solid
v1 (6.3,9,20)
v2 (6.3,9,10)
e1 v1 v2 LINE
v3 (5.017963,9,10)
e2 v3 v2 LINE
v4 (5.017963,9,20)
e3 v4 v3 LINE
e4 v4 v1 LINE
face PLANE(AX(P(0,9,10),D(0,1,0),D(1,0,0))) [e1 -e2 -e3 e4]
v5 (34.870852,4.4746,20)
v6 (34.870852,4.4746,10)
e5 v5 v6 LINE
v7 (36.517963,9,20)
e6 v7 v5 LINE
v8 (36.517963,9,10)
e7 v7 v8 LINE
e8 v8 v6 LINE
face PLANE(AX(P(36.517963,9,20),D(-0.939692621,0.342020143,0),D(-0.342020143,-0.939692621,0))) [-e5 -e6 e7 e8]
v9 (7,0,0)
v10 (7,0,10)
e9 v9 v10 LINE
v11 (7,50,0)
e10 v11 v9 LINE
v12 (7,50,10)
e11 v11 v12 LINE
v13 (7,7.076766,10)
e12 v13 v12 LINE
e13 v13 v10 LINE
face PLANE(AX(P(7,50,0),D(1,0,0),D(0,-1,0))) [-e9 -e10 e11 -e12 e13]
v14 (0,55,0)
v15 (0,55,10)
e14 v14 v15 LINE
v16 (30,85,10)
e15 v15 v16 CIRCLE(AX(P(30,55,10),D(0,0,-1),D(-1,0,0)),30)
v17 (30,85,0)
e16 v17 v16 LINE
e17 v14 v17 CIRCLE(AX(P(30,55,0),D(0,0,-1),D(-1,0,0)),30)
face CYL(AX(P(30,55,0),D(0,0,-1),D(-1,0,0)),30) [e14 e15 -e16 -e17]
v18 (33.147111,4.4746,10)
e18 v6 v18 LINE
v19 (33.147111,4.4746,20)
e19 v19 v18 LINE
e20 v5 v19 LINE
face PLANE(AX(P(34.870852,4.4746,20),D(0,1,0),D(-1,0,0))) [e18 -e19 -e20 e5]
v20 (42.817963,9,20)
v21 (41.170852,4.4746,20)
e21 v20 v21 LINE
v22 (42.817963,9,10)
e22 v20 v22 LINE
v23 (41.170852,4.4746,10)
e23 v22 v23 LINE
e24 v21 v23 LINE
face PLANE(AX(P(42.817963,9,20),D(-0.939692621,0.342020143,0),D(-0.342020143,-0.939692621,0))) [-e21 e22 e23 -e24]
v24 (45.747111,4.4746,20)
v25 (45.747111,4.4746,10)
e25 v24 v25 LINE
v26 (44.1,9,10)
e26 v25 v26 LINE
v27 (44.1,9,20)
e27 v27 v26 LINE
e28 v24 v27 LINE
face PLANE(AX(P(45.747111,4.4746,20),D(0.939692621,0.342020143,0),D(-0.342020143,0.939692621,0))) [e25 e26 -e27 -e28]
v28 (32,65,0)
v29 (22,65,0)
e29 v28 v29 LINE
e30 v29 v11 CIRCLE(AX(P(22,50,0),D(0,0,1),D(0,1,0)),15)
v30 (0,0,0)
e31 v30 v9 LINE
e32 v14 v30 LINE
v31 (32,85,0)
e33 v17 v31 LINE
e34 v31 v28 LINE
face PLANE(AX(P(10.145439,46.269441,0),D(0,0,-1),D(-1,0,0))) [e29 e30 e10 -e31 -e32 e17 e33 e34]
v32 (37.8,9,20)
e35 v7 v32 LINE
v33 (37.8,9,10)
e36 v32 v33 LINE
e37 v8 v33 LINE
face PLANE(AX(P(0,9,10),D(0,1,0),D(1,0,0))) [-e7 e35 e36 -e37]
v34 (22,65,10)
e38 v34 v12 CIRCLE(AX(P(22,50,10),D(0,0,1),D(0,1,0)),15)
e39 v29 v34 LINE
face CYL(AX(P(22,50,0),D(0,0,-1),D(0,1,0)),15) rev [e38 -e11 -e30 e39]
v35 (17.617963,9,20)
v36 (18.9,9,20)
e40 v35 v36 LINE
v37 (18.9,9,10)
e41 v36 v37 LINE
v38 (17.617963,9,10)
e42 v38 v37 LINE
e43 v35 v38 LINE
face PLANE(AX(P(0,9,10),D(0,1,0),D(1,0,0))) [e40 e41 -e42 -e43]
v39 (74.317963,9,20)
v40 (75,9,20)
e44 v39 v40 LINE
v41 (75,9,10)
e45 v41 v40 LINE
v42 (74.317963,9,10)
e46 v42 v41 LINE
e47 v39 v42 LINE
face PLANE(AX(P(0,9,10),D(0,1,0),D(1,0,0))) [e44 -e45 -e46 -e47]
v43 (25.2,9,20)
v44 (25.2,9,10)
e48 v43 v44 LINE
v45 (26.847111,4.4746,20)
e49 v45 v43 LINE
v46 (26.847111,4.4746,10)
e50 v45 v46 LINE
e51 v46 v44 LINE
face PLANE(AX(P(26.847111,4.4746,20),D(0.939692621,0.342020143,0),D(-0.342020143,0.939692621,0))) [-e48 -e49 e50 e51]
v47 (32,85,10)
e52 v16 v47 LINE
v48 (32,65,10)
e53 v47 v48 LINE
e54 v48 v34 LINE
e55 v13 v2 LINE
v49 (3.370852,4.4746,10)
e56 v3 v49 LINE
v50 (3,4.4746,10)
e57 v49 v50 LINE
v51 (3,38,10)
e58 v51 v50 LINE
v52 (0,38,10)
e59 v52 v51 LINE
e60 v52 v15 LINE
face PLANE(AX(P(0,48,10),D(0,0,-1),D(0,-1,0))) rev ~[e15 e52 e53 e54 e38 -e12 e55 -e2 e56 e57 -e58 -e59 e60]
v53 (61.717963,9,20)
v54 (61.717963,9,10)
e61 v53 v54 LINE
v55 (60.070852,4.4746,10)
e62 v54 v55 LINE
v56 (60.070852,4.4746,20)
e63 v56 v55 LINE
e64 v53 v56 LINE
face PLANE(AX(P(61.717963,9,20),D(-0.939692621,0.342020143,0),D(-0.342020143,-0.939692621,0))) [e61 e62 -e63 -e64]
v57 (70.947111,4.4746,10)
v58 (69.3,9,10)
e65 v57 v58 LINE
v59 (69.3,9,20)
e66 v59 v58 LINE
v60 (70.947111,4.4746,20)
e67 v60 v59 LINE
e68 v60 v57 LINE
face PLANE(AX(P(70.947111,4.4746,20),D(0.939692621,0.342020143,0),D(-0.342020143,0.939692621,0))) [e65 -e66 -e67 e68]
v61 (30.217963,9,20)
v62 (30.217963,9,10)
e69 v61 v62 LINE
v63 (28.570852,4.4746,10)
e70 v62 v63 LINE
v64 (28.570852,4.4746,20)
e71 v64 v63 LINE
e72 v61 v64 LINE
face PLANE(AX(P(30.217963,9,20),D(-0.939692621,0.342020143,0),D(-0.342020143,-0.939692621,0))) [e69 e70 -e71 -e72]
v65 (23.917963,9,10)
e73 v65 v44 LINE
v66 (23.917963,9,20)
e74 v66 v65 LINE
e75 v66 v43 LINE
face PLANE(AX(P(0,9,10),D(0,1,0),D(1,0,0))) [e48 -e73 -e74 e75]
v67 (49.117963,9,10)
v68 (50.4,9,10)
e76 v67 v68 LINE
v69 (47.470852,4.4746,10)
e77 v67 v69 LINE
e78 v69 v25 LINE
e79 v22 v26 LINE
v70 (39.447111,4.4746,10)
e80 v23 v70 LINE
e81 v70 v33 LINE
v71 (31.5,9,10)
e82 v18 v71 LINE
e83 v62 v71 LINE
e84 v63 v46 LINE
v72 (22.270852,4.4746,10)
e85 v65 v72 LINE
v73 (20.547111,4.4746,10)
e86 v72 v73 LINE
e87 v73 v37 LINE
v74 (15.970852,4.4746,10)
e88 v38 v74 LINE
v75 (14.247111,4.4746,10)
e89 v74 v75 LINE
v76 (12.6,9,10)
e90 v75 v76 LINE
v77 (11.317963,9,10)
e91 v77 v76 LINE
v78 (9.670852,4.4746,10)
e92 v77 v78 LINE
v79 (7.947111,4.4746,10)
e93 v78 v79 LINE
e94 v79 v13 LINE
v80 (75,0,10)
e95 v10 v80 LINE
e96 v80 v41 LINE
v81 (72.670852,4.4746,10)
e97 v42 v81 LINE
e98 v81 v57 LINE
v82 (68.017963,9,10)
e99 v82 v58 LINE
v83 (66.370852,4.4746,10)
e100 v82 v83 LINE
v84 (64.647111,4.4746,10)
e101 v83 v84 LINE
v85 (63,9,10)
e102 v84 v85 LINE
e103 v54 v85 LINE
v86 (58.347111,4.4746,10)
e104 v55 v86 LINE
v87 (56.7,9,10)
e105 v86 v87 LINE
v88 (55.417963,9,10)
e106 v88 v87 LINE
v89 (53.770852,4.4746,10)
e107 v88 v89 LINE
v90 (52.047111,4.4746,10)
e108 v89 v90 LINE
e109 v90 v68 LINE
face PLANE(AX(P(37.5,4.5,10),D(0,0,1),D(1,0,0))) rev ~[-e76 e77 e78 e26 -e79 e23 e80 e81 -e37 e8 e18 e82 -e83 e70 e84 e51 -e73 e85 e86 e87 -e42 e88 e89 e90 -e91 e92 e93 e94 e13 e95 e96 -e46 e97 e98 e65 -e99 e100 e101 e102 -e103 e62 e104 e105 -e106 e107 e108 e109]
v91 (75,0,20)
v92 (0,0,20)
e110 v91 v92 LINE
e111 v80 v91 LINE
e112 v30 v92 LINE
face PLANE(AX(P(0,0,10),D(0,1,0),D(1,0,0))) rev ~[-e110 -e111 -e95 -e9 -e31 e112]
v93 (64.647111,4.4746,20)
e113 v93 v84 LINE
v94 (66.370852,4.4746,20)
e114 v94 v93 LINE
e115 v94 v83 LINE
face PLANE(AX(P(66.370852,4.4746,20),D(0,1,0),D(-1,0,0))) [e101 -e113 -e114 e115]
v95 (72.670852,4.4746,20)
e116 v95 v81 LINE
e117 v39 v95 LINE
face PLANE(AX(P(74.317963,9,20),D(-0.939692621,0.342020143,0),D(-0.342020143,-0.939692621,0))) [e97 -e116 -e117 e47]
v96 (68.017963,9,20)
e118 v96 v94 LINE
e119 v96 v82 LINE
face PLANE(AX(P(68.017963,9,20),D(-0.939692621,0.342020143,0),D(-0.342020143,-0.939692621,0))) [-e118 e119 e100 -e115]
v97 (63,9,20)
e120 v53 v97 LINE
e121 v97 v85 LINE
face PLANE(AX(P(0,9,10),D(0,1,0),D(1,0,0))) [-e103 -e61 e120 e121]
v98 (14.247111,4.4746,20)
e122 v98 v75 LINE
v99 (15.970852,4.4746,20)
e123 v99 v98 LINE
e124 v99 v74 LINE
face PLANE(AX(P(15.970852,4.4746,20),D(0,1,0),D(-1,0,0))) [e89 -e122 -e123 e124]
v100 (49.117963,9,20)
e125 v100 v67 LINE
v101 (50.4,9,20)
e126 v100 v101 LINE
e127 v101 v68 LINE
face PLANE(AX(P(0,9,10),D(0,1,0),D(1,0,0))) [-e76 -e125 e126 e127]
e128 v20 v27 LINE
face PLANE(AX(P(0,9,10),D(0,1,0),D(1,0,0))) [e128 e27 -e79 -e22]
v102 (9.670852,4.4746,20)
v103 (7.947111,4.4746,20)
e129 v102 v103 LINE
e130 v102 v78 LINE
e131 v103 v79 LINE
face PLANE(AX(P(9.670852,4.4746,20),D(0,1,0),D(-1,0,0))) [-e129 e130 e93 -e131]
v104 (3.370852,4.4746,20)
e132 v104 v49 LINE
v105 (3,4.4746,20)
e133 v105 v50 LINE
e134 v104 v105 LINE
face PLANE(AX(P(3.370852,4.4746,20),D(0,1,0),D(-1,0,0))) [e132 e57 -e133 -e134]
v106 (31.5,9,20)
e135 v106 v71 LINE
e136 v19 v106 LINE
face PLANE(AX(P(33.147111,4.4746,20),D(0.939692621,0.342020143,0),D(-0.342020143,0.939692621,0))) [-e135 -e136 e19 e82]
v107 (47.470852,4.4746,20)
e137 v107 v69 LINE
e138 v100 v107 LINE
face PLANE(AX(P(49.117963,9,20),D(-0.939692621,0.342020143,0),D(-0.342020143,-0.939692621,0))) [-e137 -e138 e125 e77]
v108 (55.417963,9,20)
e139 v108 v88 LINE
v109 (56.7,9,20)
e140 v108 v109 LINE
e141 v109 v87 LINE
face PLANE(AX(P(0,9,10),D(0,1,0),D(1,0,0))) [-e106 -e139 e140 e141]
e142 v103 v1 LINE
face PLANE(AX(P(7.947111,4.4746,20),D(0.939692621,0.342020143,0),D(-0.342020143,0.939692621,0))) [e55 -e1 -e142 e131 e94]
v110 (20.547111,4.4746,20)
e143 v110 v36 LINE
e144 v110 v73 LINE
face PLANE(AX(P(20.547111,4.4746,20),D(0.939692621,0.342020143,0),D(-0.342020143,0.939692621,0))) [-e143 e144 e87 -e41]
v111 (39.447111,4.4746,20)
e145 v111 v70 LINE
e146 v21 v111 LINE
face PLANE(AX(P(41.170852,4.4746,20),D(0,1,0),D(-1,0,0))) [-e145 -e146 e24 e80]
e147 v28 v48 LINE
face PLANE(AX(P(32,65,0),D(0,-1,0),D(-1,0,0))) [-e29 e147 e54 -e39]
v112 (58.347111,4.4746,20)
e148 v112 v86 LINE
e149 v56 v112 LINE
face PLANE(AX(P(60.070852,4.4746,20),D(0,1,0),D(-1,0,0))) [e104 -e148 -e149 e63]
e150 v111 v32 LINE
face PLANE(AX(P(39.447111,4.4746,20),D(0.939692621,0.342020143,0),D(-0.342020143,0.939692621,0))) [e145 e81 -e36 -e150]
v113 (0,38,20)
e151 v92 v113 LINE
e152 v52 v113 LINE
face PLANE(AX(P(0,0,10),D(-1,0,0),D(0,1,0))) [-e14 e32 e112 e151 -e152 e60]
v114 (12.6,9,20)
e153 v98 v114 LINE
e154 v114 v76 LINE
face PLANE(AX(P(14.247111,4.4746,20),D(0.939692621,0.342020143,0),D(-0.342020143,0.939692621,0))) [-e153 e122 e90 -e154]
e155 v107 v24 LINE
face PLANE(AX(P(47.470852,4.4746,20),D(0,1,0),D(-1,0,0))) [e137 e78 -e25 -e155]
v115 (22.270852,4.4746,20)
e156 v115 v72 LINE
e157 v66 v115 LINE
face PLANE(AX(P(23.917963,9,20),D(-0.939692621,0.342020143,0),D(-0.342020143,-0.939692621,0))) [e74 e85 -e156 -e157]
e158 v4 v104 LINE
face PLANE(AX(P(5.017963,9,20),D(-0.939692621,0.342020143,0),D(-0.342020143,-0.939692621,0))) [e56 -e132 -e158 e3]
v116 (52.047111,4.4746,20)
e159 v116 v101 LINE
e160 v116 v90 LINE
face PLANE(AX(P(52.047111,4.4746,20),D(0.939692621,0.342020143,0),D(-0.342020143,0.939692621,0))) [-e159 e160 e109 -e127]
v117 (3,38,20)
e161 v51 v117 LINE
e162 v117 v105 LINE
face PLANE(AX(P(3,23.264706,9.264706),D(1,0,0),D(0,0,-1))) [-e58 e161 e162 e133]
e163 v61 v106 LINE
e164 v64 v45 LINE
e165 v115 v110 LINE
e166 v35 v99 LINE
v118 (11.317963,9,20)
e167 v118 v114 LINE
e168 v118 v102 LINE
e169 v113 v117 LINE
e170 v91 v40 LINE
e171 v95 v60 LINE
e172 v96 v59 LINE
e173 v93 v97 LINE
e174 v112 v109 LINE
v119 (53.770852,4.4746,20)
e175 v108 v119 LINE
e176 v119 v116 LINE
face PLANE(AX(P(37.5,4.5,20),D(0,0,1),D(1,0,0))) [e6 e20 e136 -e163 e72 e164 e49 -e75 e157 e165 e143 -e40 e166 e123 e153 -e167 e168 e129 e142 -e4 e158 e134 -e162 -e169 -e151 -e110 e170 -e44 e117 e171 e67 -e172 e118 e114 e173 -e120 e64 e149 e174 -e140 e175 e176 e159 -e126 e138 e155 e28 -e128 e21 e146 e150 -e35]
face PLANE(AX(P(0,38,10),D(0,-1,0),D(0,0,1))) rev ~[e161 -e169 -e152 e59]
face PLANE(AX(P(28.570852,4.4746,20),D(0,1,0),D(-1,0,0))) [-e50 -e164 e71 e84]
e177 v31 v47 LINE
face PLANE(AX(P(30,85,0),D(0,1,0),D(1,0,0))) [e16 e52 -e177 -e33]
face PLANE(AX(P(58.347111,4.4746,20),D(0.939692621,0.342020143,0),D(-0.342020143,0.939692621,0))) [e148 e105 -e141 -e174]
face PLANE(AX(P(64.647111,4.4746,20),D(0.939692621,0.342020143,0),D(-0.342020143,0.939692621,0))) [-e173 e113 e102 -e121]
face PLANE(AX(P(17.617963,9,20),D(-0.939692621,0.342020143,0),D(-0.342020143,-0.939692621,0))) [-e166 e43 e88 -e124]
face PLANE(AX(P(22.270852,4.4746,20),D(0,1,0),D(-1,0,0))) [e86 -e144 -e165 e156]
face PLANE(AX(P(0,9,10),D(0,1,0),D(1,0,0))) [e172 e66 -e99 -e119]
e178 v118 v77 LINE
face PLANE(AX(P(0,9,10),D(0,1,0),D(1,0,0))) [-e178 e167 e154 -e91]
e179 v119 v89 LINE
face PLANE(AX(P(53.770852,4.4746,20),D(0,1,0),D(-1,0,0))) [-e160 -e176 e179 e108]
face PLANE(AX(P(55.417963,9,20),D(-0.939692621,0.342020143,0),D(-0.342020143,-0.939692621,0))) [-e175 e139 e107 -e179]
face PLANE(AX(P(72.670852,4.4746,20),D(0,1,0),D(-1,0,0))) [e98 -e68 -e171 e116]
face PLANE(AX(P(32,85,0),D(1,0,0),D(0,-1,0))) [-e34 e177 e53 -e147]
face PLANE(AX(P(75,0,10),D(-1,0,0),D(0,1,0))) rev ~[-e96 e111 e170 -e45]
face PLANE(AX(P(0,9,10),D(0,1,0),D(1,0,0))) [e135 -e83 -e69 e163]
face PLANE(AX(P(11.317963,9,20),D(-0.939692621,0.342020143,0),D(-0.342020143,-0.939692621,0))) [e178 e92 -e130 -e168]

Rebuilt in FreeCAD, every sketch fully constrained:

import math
import FreeCAD as App
import Part
import Sketcher
from FreeCAD import Vector
Q = App.Units.Quantity


def add_polygon(sketch, points):
    """Adds a closed chain of lines whose ends are joined by coincident constraints."""
    first, n = sketch.GeometryCount, len(points)
    for a, b in zip(points, points[1:] + points[:1]):
        sketch.addGeometry(Part.LineSegment(App.Vector(*a, 0), App.Vector(*b, 0)), False)
    for i in range(n):
        sketch.addConstraint(Sketcher.Constraint("Coincident", first + i, 2, first + (i + 1) % n, 1))

doc = App.newDocument("Part")
params = doc.addObject("Spreadsheet::Sheet", "Params")
for row, (alias, value) in enumerate([
    ("sketch1_radius", "15 mm"),
    ("sketch1_radius2", "30 mm"),
    ("sketch1_width", "7 mm"),
    ("sketch1_width2", "10 mm"),
    ("sketch1_height", "50 mm"),
    ("pad1_length", "10 mm"),
    ("sketch2_width", "75 mm"),
    ("sketch2_height", "9 mm"),
    ("pad2_length", "10 mm"),
    ("pocket1_length", "10 mm"),
    ("sketch4_width", "38 mm"),
    ("sketch4_width2", "10 mm"),
    ("pad3_length", "3 mm"),
], start=1):
    params.set(f"A{row}", alias)
    params.set(f"B{row}", "=" + value)
    params.setAlias(f"B{row}", alias)

body = doc.addObject("PartDesign::Body", "Body")

sketch1 = doc.addObject("Sketcher::SketchObject", "Sketch")
body.addObject(sketch1)
sketch1.AttachmentSupport = (doc.XY_Plane, [""])
sketch1.MapMode = "FlatFace"
sketch1.addGeometry([
    Part.LineSegment(Vector(0, 0, 0), Vector(7, 0, 0)),
    Part.LineSegment(Vector(7, 0, 0), Vector(7, 50, 0)),
    Part.ArcOfCircle(Part.Circle(Vector(22, 50, 0), Vector(0, 0, 1), 15), math.radians(90), math.radians(180)),
    Part.LineSegment(Vector(22, 65, 0), Vector(32, 65, 0)),
    Part.LineSegment(Vector(32, 65, 0), Vector(32, 85, 0)),
    Part.LineSegment(Vector(32, 85, 0), Vector(30, 85, 0)),
    Part.ArcOfCircle(Part.Circle(Vector(30, 55, 0), Vector(0, 0, 1), 30), math.radians(90), math.radians(180)),
    Part.LineSegment(Vector(0, 55, 0), Vector(0, 0, 0)),
], False)
sketch1.addConstraint([
    Sketcher.Constraint("Coincident", 0, 2, 1, 1),
    Sketcher.Constraint("Tangent", 1, 2, 2, 2),
    Sketcher.Constraint("Tangent", 2, 1, 3, 1),
    Sketcher.Constraint("Coincident", 3, 2, 4, 1),
    Sketcher.Constraint("Coincident", 4, 2, 5, 1),
    Sketcher.Constraint("Tangent", 5, 2, 6, 1),
    Sketcher.Constraint("Tangent", 6, 2, 7, 1),
    Sketcher.Constraint("Coincident", 7, 2, 0, 1),
    Sketcher.Constraint("Horizontal", 0),
    Sketcher.Constraint("Vertical", 1),
    Sketcher.Constraint("Horizontal", 3),
    Sketcher.Constraint("Vertical", 4),
    Sketcher.Constraint("Horizontal", 5),
    Sketcher.Constraint("Vertical", 7),
    Sketcher.Constraint("Coincident", 7, 2, -1, 1),
    Sketcher.Constraint("Radius", 2, 15.0),
    Sketcher.Constraint("Radius", 6, 30.0),
    Sketcher.Constraint("DistanceX", 0, 1, 0, 2, 7.0),
    Sketcher.Constraint("DistanceX", 3, 1, 3, 2, 10.0),
    Sketcher.Constraint("DistanceY", 1, 1, 1, 2, 50.0),
    Sketcher.Constraint("DistanceY", 4, 1, 4, 2, 20.0),
])
sketch1.setExpression("Constraints[15]", "Params.sketch1_radius")
sketch1.setExpression("Constraints[16]", "Params.sketch1_radius2")
sketch1.setExpression("Constraints[17]", "Params.sketch1_width")
sketch1.setExpression("Constraints[18]", "Params.sketch1_width2")
sketch1.setExpression("Constraints[19]", "Params.sketch1_height")
pad1 = doc.addObject("PartDesign::Pad", "Pad")
body.addObject(pad1)
pad1.Profile = sketch1
pad1.setExpression("Length", "Params.pad1_length")

sketch2 = doc.addObject("Sketcher::SketchObject", "Sketch001")
body.addObject(sketch2)
sketch2.AttachmentSupport = (doc.XY_Plane, [""])
sketch2.MapMode = "FlatFace"
sketch2.AttachmentOffset = App.Placement(Vector(0, 0, 10), App.Rotation())
add_polygon(sketch2, [(0, 9), (0, 0), (75, 0), (75, 9)])
sketch2.addConstraint([
    Sketcher.Constraint("Vertical", 0),
    Sketcher.Constraint("Horizontal", 1),
    Sketcher.Constraint("Vertical", 2),
    Sketcher.Constraint("Horizontal", 3),
    Sketcher.Constraint("Coincident", 0, 2, -1, 1),
    Sketcher.Constraint("DistanceX", 1, 1, 1, 2, 75.0),
    Sketcher.Constraint("DistanceY", 0, 2, 0, 1, 9.0),
])
sketch2.setExpression("Constraints[9]", "Params.sketch2_width")
sketch2.setExpression("Constraints[10]", "Params.sketch2_height")
pad2 = doc.addObject("PartDesign::Pad", "Pad001")
body.addObject(pad2)
pad2.Profile = sketch2
pad2.setExpression("Length", "Params.pad2_length")

sketch3 = doc.addObject("Sketcher::SketchObject", "Sketch002")
body.addObject(sketch3)
sketch3.AttachmentSupport = (doc.XY_Plane, [""])
sketch3.MapMode = "FlatFace"
sketch3.AttachmentOffset = App.Placement(Vector(0, 0, 20), App.Rotation())
add_polygon(sketch3, [(1.6, 4.5), (3.4, 4.5), (5, 9), (0, 9)])
add_polygon(sketch3, [(7.9, 4.5), (9.7, 4.5), (11.3, 9), (6.3, 9)])
add_polygon(sketch3, [(14.2, 4.5), (16, 4.5), (17.6, 9), (12.6, 9)])
add_polygon(sketch3, [(20.5, 4.5), (22.3, 4.5), (23.9, 9), (18.9, 9)])
add_polygon(sketch3, [(26.8, 4.5), (28.6, 4.5), (30.2, 9), (25.2, 9)])
add_polygon(sketch3, [(33.1, 4.5), (34.9, 4.5), (36.5, 9), (31.5, 9)])
add_polygon(sketch3, [(39.4, 4.5), (41.2, 4.5), (42.8, 9), (37.8, 9)])
add_polygon(sketch3, [(45.7, 4.5), (47.5, 4.5), (49.1, 9), (44.1, 9)])
add_polygon(sketch3, [(52, 4.5), (53.8, 4.5), (55.4, 9), (50.4, 9)])
add_polygon(sketch3, [(58.3, 4.5), (60.1, 4.5), (61.7, 9), (56.7, 9)])
add_polygon(sketch3, [(64.6, 4.5), (66.4, 4.5), (68, 9), (63, 9)])
add_polygon(sketch3, [(70.9, 4.5), (72.7, 4.5), (74.3, 9), (69.3, 9)])
sketch3.addConstraint([
    Sketcher.Constraint("Horizontal", 0),
    Sketcher.Constraint("Horizontal", 2),
    Sketcher.Constraint("Horizontal", 4),
    Sketcher.Constraint("Horizontal", 6),
    Sketcher.Constraint("Horizontal", 8),
    Sketcher.Constraint("Horizontal", 10),
    Sketcher.Constraint("Horizontal", 12),
    Sketcher.Constraint("Horizontal", 14),
    Sketcher.Constraint("Horizontal", 16),
    Sketcher.Constraint("Horizontal", 18),
    Sketcher.Constraint("Horizontal", 20),
    Sketcher.Constraint("Horizontal", 22),
    Sketcher.Constraint("Horizontal", 24),
    Sketcher.Constraint("Horizontal", 26),
    Sketcher.Constraint("Horizontal", 28),
    Sketcher.Constraint("Horizontal", 30),
    Sketcher.Constraint("Horizontal", 32),
    Sketcher.Constraint("Horizontal", 34),
    Sketcher.Constraint("Horizontal", 36),
    Sketcher.Constraint("Horizontal", 38),
    Sketcher.Constraint("Horizontal", 40),
    Sketcher.Constraint("Horizontal", 42),
    Sketcher.Constraint("Horizontal", 44),
    Sketcher.Constraint("Horizontal", 46),
    Sketcher.Constraint("PointOnObject", 2, 2, -2),
    Sketcher.Constraint("Parallel", 1, 5),
    Sketcher.Constraint("Parallel", 3, 7),
    Sketcher.Constraint("Parallel", 5, 9),
    Sketcher.Constraint("Parallel", 7, 11),
    Sketcher.Constraint("Parallel", 9, 13),
    Sketcher.Constraint("Parallel", 11, 15),
    Sketcher.Constraint("Parallel", 13, 17),
    Sketcher.Constraint("Parallel", 15, 19),
    Sketcher.Constraint("Parallel", 17, 21),
    Sketcher.Constraint("Parallel", 19, 23),
    Sketcher.Constraint("Parallel", 21, 25),
    Sketcher.Constraint("Parallel", 23, 27),
    Sketcher.Constraint("Parallel", 25, 29),
    Sketcher.Constraint("Parallel", 27, 31),
    Sketcher.Constraint("Parallel", 29, 33),
    Sketcher.Constraint("Parallel", 31, 35),
    Sketcher.Constraint("Parallel", 33, 37),
    Sketcher.Constraint("Parallel", 35, 39),
    Sketcher.Constraint("Parallel", 37, 41),
    Sketcher.Constraint("Parallel", 39, 43),
    Sketcher.Constraint("Parallel", 41, 45),
    Sketcher.Constraint("Parallel", 43, 47),
    Sketcher.Constraint("Horizontal", 3, 2, 4, 2),
    Sketcher.Constraint("Horizontal", 2, 2, 5, 2),
    Sketcher.Constraint("Horizontal", 7, 2, 8, 2),
    Sketcher.Constraint("Horizontal", 6, 2, 9, 2),
    Sketcher.Constraint("Horizontal", 11, 2, 12, 2),
    Sketcher.Constraint("Horizontal", 10, 2, 13, 2),
    Sketcher.Constraint("Horizontal", 15, 2, 16, 2),
    Sketcher.Constraint("Horizontal", 14, 2, 17, 2),
    Sketcher.Constraint("Horizontal", 19, 2, 20, 2),
    Sketcher.Constraint("Horizontal", 18, 2, 21, 2),
    Sketcher.Constraint("Horizontal", 23, 2, 24, 2),
    Sketcher.Constraint("Horizontal", 22, 2, 25, 2),
    Sketcher.Constraint("Horizontal", 27, 2, 28, 2),
    Sketcher.Constraint("Horizontal", 26, 2, 29, 2),
    Sketcher.Constraint("Horizontal", 31, 2, 32, 2),
    Sketcher.Constraint("Horizontal", 30, 2, 33, 2),
    Sketcher.Constraint("Horizontal", 35, 2, 36, 2),
    Sketcher.Constraint("Horizontal", 34, 2, 37, 2),
    Sketcher.Constraint("Horizontal", 39, 2, 40, 2),
    Sketcher.Constraint("Horizontal", 38, 2, 41, 2),
    Sketcher.Constraint("Horizontal", 43, 2, 44, 2),
    Sketcher.Constraint("Horizontal", 42, 2, 45, 2),
    Sketcher.Constraint("Equal", 0, 4),
    Sketcher.Constraint("Equal", 4, 8),
    Sketcher.Constraint("Equal", 8, 12),
    Sketcher.Constraint("Equal", 12, 16),
    Sketcher.Constraint("Equal", 16, 20),
    Sketcher.Constraint("Equal", 20, 24),
    Sketcher.Constraint("Equal", 24, 28),
    Sketcher.Constraint("Equal", 28, 32),
    Sketcher.Constraint("Equal", 32, 36),
    Sketcher.Constraint("Equal", 36, 40),
    Sketcher.Constraint("Equal", 40, 44),
    Sketcher.Constraint("Equal", 1, 3),
    Sketcher.Constraint("Angle", 1, Q("70 deg")),
    Sketcher.Constraint("DistanceY", -1, 1, 1, 2, 9.0),
    Sketcher.Constraint("DistanceX", -1, 1, 42, 2, 63.0),
    Sketcher.Constraint("DistanceX", -1, 1, 6, 2, 6.3),
    Sketcher.Constraint("DistanceX", -1, 1, 10, 2, 12.6),
    Sketcher.Constraint("DistanceX", -1, 1, 14, 2, 18.9),
    Sketcher.Constraint("DistanceX", -1, 1, 18, 2, 25.2),
    Sketcher.Constraint("DistanceX", -1, 1, 22, 2, 31.5),
    Sketcher.Constraint("DistanceX", -1, 1, 26, 2, 37.8),
    Sketcher.Constraint("DistanceX", -1, 1, 30, 2, 44.1),
    Sketcher.Constraint("DistanceX", -1, 1, 34, 2, 50.4),
    Sketcher.Constraint("DistanceX", -1, 1, 38, 2, 56.7),
    Sketcher.Constraint("DistanceX", -1, 1, 46, 2, 69.3),
    Sketcher.Constraint("DistanceX", 0, 1, 0, 2, 1.723741),
    Sketcher.Constraint("DistanceY", -1, 1, 0, 2, 4.4746),
])
pocket1 = doc.addObject("PartDesign::Pocket", "Pocket")
body.addObject(pocket1)
pocket1.Profile = sketch3
pocket1.setExpression("Length", "Params.pocket1_length")

sketch4 = doc.addObject("Sketcher::SketchObject", "Sketch003")
body.addObject(sketch4)
sketch4.AttachmentSupport = (doc.YZ_Plane, [""])
sketch4.MapMode = "FlatFace"
add_polygon(sketch4, [(0, 0), (0, 20), (38, 20), (38, 10), (48, 10), (48, 0)])
sketch4.addConstraint([
    Sketcher.Constraint("Vertical", 0),
    Sketcher.Constraint("Horizontal", 1),
    Sketcher.Constraint("Vertical", 2),
    Sketcher.Constraint("Horizontal", 3),
    Sketcher.Constraint("Vertical", 4),
    Sketcher.Constraint("Horizontal", 5),
    Sketcher.Constraint("Coincident", 5, 2, -1, 1),
    Sketcher.Constraint("Equal", 3, 2),
    Sketcher.Constraint("Equal", 2, 4),
    Sketcher.Constraint("DistanceX", 1, 1, 1, 2, 38.0),
    Sketcher.Constraint("DistanceX", 3, 1, 3, 2, 10.0),
])
sketch4.setExpression("Constraints[15]", "Params.sketch4_width")
sketch4.setExpression("Constraints[16]", "Params.sketch4_width2")
pad3 = doc.addObject("PartDesign::Pad", "Pad002")
body.addObject(pad3)
pad3.Profile = sketch4
pad3.setExpression("Length", "Params.pad3_length")

doc.recompute()
